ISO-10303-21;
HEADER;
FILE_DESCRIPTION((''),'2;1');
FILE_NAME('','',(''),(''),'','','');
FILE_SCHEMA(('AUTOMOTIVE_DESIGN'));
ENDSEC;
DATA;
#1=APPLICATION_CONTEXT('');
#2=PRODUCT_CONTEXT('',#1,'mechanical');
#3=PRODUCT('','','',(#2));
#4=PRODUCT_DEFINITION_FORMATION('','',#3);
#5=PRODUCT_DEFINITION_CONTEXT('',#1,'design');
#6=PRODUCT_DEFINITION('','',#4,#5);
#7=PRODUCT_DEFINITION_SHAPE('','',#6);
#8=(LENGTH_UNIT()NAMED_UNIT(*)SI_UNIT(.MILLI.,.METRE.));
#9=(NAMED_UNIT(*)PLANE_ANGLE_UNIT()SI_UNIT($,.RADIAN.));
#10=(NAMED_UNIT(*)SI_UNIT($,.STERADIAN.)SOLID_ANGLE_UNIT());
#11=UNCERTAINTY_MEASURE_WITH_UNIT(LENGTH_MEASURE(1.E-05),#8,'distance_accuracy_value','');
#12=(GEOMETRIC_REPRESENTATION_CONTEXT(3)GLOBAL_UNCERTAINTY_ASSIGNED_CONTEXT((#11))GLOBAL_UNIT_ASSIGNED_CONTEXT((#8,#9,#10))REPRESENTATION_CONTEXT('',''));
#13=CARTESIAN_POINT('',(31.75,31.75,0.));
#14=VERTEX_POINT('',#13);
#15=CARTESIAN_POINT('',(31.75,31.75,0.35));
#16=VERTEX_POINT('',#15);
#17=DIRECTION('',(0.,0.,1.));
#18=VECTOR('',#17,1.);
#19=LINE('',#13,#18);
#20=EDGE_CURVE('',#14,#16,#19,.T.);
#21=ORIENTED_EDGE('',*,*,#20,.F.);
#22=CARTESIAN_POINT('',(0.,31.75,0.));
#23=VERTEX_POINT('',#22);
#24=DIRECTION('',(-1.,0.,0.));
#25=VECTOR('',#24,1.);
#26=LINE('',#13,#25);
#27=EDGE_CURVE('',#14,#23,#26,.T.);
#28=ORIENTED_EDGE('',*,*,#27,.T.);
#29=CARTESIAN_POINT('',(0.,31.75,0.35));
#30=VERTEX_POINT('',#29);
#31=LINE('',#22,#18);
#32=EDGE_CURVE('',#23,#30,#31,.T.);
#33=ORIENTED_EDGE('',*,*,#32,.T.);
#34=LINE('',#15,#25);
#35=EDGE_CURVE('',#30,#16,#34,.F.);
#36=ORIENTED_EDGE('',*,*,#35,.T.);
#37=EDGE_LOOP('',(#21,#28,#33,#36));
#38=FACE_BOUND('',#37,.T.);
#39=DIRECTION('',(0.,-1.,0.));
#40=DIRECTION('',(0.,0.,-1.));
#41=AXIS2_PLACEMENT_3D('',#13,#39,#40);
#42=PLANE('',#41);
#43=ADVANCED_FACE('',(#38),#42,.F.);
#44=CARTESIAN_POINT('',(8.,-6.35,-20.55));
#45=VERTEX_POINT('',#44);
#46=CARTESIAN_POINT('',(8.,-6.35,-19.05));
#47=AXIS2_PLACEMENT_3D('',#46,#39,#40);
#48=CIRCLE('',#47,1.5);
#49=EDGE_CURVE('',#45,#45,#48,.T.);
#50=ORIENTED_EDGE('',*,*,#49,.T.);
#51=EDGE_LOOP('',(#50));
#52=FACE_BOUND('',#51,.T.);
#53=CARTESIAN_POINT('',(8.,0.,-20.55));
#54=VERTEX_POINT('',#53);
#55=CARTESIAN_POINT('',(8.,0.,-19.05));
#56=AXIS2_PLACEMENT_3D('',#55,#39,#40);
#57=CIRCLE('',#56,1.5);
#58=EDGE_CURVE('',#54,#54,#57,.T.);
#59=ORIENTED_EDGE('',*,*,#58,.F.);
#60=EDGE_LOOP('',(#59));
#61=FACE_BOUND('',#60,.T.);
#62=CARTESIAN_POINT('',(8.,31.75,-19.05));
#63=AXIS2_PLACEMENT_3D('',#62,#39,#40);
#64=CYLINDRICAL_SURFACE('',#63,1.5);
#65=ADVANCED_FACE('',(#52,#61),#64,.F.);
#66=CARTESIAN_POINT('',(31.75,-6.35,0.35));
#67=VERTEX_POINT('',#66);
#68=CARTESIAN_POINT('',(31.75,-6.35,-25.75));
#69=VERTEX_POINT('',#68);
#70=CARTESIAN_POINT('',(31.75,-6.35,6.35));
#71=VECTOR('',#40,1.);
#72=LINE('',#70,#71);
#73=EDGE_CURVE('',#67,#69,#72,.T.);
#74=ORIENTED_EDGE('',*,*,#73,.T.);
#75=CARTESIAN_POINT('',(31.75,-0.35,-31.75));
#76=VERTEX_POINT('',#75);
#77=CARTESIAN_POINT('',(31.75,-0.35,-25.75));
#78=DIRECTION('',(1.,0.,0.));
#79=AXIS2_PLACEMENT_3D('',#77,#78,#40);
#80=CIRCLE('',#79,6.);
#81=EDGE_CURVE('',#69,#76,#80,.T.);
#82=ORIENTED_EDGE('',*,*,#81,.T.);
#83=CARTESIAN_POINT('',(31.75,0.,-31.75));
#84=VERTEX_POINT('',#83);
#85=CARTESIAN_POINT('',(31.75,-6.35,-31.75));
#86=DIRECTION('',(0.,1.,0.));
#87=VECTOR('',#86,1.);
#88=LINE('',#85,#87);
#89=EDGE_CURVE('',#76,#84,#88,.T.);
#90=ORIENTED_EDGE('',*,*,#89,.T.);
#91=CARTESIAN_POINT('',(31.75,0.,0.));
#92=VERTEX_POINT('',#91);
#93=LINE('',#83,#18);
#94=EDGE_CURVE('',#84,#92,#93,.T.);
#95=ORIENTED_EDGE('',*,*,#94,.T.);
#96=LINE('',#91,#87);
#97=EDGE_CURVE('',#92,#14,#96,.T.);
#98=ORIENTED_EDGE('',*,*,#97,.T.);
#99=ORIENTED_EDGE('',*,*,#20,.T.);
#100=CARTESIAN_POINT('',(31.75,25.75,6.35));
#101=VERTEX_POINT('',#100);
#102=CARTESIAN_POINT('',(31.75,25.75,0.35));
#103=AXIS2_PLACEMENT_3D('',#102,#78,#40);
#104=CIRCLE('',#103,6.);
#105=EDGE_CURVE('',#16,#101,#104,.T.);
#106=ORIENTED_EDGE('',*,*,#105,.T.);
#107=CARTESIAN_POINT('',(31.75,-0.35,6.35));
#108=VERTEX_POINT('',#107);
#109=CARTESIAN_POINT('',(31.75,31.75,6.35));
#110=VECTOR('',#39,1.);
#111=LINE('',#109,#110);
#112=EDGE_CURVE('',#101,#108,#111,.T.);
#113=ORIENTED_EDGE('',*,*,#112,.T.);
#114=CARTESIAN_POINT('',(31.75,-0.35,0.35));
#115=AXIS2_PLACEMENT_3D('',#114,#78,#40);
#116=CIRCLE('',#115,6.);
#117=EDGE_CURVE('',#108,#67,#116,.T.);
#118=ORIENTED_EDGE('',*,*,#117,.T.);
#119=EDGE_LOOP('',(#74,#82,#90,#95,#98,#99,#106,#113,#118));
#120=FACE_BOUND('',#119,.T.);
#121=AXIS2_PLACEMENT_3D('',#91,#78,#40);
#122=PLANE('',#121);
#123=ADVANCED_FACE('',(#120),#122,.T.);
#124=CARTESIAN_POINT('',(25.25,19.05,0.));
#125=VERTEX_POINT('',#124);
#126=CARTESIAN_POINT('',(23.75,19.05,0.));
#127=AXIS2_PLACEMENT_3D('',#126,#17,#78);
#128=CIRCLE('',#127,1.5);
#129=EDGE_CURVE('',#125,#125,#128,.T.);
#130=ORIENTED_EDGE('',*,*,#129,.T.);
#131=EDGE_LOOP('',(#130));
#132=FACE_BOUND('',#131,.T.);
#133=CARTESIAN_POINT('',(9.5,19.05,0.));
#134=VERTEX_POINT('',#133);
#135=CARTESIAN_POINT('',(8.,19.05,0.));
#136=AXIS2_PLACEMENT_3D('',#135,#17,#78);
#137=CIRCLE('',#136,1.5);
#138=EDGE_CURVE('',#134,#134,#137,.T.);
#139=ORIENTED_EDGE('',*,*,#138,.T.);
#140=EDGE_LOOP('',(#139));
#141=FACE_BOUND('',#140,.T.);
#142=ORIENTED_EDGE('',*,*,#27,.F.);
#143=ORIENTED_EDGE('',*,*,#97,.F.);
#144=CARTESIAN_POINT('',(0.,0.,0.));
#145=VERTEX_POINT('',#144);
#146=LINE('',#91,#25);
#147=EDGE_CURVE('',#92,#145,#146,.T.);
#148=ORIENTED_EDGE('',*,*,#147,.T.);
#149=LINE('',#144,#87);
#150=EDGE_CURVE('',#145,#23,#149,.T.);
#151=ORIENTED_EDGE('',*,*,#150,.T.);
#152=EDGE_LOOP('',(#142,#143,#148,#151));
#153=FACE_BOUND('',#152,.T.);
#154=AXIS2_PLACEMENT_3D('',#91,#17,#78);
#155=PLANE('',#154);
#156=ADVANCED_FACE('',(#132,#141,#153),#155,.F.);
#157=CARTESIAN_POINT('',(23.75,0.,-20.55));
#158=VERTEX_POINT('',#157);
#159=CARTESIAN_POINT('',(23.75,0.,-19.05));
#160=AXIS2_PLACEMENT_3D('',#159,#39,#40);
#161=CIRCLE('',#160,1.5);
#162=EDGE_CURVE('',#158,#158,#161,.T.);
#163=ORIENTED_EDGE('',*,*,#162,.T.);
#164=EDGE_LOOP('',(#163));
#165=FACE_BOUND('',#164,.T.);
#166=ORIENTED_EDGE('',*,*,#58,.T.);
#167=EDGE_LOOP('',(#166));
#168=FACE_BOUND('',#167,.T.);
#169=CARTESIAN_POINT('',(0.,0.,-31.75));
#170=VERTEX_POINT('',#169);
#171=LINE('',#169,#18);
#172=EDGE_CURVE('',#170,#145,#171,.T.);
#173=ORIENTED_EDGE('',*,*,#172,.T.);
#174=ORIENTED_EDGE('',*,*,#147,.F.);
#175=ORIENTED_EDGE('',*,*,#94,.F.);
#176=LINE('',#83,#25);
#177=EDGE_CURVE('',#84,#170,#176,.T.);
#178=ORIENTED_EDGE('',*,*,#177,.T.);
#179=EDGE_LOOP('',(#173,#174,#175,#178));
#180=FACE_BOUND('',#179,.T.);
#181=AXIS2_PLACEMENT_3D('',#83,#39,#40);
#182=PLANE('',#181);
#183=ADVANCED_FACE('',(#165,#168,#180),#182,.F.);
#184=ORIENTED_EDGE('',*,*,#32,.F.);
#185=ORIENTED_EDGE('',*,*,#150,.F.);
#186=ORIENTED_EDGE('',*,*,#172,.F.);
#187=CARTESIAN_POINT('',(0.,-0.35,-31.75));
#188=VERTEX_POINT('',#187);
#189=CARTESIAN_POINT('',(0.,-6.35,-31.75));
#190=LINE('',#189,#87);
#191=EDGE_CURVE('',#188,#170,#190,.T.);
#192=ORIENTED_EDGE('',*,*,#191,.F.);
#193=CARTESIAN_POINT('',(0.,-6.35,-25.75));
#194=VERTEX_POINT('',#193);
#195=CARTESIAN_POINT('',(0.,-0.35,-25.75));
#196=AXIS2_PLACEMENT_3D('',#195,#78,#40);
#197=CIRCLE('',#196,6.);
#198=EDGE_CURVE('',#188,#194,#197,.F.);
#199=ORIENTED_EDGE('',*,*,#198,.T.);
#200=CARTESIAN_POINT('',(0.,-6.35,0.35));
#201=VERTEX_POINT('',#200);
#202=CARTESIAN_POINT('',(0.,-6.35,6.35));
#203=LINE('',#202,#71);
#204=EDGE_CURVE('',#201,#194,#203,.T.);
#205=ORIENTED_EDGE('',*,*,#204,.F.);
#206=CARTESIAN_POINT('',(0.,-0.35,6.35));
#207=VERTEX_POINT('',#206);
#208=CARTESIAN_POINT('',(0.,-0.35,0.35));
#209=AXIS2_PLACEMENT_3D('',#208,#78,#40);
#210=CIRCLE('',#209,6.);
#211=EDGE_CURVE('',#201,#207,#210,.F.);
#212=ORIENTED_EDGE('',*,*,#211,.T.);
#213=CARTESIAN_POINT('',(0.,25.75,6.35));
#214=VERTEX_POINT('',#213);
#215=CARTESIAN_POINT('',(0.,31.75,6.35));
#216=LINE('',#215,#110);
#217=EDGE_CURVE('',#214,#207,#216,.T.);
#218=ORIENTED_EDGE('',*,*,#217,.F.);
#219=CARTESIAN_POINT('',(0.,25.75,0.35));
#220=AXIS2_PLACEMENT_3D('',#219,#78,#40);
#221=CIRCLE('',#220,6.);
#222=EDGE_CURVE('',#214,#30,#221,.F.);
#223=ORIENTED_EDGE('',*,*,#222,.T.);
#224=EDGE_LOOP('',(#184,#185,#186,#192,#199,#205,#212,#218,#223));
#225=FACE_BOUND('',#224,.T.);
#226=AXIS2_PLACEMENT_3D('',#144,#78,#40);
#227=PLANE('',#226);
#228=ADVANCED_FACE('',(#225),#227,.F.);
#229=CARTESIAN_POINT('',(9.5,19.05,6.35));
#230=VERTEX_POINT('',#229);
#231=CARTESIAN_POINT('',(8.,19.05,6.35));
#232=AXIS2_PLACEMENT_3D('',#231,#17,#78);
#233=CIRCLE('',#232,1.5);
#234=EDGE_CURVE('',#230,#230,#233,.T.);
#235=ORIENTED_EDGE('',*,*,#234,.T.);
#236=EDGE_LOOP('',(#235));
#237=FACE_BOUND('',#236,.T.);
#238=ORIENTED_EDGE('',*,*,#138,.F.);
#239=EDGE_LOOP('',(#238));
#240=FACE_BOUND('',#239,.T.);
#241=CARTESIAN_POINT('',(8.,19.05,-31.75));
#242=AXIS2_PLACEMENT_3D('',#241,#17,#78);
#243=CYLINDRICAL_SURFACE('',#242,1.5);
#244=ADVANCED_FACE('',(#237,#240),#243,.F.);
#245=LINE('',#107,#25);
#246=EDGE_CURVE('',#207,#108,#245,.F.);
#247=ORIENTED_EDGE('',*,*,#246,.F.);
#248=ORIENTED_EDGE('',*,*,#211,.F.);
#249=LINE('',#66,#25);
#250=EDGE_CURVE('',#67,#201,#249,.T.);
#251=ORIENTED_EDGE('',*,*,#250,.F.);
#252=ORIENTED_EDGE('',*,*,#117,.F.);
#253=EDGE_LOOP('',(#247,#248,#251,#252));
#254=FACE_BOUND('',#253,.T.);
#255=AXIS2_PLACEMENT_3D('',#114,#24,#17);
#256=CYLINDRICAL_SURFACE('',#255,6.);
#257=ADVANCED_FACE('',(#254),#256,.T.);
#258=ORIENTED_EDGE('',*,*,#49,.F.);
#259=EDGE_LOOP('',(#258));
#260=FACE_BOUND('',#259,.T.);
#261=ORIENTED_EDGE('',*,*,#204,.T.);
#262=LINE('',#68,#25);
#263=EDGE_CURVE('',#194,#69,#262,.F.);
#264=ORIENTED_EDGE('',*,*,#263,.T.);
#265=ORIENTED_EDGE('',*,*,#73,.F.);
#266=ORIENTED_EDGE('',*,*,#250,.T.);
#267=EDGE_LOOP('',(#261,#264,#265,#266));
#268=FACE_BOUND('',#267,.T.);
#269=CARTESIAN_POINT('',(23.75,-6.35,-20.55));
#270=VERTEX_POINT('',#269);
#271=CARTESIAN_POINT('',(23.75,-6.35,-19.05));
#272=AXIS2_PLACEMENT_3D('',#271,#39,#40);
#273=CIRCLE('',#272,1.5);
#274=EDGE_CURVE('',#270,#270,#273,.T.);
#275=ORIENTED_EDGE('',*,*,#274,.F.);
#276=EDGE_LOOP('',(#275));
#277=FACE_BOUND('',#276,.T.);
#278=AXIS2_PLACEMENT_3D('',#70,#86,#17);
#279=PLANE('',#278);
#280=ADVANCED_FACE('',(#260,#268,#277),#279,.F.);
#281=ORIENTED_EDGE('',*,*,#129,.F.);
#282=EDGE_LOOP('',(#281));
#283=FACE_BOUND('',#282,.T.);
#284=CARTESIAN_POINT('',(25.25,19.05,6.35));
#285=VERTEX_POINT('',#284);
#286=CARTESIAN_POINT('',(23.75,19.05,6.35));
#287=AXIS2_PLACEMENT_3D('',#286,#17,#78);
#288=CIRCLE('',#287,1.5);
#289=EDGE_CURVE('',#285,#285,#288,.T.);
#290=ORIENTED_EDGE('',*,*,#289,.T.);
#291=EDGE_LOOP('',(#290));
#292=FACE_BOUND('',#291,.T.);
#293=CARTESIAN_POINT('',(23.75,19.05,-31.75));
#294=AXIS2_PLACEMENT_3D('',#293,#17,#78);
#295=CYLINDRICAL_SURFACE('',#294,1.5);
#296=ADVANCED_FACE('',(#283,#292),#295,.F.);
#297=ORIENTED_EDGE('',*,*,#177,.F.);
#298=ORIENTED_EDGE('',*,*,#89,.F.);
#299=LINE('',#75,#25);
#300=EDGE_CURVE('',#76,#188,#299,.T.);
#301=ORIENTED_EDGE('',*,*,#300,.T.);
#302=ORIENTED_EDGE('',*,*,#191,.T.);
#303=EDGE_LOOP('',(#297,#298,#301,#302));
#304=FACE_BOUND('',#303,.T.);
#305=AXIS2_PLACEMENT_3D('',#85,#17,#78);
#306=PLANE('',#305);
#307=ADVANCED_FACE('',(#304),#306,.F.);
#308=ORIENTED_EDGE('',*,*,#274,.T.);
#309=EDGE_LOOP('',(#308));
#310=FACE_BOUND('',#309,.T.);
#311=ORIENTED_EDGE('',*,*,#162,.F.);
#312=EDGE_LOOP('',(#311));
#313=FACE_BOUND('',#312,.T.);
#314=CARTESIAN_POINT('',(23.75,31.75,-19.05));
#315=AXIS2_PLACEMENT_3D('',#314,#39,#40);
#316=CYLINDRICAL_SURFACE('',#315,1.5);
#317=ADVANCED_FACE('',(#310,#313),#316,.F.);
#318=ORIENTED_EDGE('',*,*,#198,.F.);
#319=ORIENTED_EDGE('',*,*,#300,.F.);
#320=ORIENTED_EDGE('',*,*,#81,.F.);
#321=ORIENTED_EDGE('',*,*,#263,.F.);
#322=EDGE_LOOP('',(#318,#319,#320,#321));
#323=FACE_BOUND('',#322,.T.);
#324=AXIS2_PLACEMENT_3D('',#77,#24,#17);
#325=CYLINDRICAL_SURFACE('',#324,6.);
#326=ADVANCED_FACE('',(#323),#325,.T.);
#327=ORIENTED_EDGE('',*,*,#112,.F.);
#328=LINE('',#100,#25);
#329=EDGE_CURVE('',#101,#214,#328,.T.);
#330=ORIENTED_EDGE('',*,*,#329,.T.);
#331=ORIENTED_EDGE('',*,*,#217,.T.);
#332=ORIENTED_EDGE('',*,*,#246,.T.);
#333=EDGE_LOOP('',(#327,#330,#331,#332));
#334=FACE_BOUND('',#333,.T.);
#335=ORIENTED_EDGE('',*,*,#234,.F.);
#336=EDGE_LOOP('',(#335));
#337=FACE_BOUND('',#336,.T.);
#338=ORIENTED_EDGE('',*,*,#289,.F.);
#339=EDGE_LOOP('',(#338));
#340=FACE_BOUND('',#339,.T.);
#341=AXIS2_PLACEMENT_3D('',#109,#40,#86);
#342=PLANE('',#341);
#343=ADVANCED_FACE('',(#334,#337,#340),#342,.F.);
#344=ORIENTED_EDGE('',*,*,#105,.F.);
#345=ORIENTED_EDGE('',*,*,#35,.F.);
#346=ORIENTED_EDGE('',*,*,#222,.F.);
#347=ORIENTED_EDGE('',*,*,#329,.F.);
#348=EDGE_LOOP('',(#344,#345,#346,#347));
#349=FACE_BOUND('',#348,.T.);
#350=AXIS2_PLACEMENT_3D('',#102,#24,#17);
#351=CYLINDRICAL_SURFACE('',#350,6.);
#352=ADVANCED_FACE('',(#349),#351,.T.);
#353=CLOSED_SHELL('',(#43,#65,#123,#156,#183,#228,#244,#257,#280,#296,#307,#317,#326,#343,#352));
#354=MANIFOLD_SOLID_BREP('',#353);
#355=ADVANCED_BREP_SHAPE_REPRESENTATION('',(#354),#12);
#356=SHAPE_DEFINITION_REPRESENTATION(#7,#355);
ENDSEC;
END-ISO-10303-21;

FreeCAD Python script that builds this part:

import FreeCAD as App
import Part
import Sketcher


def edges_at(feature, points):
    """Names of the edges that pass closest to the given points."""
    edges = feature.Shape.Edges
    near = lambda p: min(range(len(edges)), key=lambda i: edges[i].distToShape(Part.Vertex(*p))[0])
    return sorted({f"Edge{near(p) + 1}" for p in points})


def add_polygon(sketch, points):
    """Adds a closed chain of lines whose ends are joined by coincident constraints."""
    first, n = sketch.GeometryCount, len(points)
    for a, b in zip(points, points[1:] + points[:1]):
        sketch.addGeometry(Part.LineSegment(App.Vector(*a, 0), App.Vector(*b, 0)), False)
    for i in range(n):
        sketch.addConstraint(Sketcher.Constraint("Coincident", first + i, 2, first + (i + 1) % n, 1))

doc = App.newDocument("Part")
body = doc.addObject("PartDesign::Body", "Body")

# Sketch on YZ plane
sketch1 = body.newObject("Sketcher::SketchObject", "Sketch")
sketch1.AttachmentSupport = (doc.getObject("YZ_Plane"), [""])
sketch1.MapMode = "FlatFace"
add_polygon(sketch1, [(32, 6), (-6, 6), (-6, -32), (0, -32), (0, 0), (32, 0)])  # lines 0-5
sketch1.addConstraint([
    Sketcher.Constraint("Horizontal", 0),
    Sketcher.Constraint("Vertical", 1),
    Sketcher.Constraint("Horizontal", 2),
    Sketcher.Constraint("Vertical", 3),
    Sketcher.Constraint("Horizontal", 4),
    Sketcher.Constraint("Vertical", 5),
    Sketcher.Constraint("Coincident", 3, 2, -1, 1),
    Sketcher.Constraint("Equal", 0, 1),
    Sketcher.Constraint("Equal", 4, 3),
    Sketcher.Constraint("DistanceX", 0, 2, 0, 1, 38.1),
    Sketcher.Constraint("DistanceX", 2, 1, 2, 2, 6.35),
])
pad1 = body.newObject("PartDesign::Pad", "Pad")
pad1.Profile = sketch1
pad1.Length = 31.75
doc.recompute()

fillet = body.newObject("PartDesign::Fillet", "Fillet")
fillet.Base = (pad1, edges_at(pad1, [(15.875, -6.35, -31.75), (15.875, 31.75, 6.35)]))
fillet.Radius = 6

# Sketch on XY plane
sketch2 = body.newObject("Sketcher::SketchObject", "Sketch001")
sketch2.AttachmentSupport = (doc.getObject("XY_Plane"), [""])
sketch2.MapMode = "FlatFace"
sketch2.AttachmentOffset = App.Placement(App.Vector(0, 0, 6.35), App.Rotation())
sketch2.addGeometry([
    Part.Circle(App.Vector(8, 19.1, 0), App.Vector(0, 0, 1), 1.5),
    Part.Circle(App.Vector(23.8, 19.1, 0), App.Vector(0, 0, 1), 1.5),
], False)
sketch2.addConstraint([
    Sketcher.Constraint("Equal", 0, 1),
    Sketcher.Constraint("Horizontal", 0, 3, 1, 3),
    Sketcher.Constraint("Diameter", 0, 3.0),
    Sketcher.Constraint("DistanceX", -1, 1, 0, 3, 8.0),
    Sketcher.Constraint("DistanceY", -1, 1, 0, 3, 19.05),
    Sketcher.Constraint("DistanceX", -1, 1, 1, 3, 23.75),
])
pocket1 = body.newObject("PartDesign::Pocket", "Pocket")
pocket1.Profile = sketch2
pocket1.Type = "ThroughAll"

# Sketch on XZ plane
sketch3 = body.newObject("Sketcher::SketchObject", "Sketch002")
sketch3.AttachmentSupport = (doc.getObject("XZ_Plane"), [""])
sketch3.MapMode = "FlatFace"
sketch3.AttachmentOffset = App.Placement(App.Vector(0, 0, 6.35), App.Rotation())
sketch3.addGeometry([
    Part.Circle(App.Vector(8, -19.1, 0), App.Vector(0, 0, 1), 1.5),
    Part.Circle(App.Vector(23.8, -19.1, 0), App.Vector(0, 0, 1), 1.5),
], False)
sketch3.addConstraint([
    Sketcher.Constraint("Equal", 0, 1),
    Sketcher.Constraint("Horizontal", 0, 3, 1, 3),
    Sketcher.Constraint("Diameter", 0, 3.0),
    Sketcher.Constraint("DistanceX", -1, 1, 0, 3, 8.0),
    Sketcher.Constraint("DistanceY", 0, 3, -1, 1, 19.05),
    Sketcher.Constraint("DistanceX", -1, 1, 1, 3, 23.75),
])
pocket2 = body.newObject("PartDesign::Pocket", "Pocket001")
pocket2.Profile = sketch3
pocket2.Type = "ThroughAll"
doc.recompute()

fillet2 = body.newObject("PartDesign::Fillet", "Fillet001")
fillet2.Base = (pocket2, edges_at(pocket2, [(15.875, -6.35, 6.35)]))
fillet2.Radius = 6

doc.recompute()
